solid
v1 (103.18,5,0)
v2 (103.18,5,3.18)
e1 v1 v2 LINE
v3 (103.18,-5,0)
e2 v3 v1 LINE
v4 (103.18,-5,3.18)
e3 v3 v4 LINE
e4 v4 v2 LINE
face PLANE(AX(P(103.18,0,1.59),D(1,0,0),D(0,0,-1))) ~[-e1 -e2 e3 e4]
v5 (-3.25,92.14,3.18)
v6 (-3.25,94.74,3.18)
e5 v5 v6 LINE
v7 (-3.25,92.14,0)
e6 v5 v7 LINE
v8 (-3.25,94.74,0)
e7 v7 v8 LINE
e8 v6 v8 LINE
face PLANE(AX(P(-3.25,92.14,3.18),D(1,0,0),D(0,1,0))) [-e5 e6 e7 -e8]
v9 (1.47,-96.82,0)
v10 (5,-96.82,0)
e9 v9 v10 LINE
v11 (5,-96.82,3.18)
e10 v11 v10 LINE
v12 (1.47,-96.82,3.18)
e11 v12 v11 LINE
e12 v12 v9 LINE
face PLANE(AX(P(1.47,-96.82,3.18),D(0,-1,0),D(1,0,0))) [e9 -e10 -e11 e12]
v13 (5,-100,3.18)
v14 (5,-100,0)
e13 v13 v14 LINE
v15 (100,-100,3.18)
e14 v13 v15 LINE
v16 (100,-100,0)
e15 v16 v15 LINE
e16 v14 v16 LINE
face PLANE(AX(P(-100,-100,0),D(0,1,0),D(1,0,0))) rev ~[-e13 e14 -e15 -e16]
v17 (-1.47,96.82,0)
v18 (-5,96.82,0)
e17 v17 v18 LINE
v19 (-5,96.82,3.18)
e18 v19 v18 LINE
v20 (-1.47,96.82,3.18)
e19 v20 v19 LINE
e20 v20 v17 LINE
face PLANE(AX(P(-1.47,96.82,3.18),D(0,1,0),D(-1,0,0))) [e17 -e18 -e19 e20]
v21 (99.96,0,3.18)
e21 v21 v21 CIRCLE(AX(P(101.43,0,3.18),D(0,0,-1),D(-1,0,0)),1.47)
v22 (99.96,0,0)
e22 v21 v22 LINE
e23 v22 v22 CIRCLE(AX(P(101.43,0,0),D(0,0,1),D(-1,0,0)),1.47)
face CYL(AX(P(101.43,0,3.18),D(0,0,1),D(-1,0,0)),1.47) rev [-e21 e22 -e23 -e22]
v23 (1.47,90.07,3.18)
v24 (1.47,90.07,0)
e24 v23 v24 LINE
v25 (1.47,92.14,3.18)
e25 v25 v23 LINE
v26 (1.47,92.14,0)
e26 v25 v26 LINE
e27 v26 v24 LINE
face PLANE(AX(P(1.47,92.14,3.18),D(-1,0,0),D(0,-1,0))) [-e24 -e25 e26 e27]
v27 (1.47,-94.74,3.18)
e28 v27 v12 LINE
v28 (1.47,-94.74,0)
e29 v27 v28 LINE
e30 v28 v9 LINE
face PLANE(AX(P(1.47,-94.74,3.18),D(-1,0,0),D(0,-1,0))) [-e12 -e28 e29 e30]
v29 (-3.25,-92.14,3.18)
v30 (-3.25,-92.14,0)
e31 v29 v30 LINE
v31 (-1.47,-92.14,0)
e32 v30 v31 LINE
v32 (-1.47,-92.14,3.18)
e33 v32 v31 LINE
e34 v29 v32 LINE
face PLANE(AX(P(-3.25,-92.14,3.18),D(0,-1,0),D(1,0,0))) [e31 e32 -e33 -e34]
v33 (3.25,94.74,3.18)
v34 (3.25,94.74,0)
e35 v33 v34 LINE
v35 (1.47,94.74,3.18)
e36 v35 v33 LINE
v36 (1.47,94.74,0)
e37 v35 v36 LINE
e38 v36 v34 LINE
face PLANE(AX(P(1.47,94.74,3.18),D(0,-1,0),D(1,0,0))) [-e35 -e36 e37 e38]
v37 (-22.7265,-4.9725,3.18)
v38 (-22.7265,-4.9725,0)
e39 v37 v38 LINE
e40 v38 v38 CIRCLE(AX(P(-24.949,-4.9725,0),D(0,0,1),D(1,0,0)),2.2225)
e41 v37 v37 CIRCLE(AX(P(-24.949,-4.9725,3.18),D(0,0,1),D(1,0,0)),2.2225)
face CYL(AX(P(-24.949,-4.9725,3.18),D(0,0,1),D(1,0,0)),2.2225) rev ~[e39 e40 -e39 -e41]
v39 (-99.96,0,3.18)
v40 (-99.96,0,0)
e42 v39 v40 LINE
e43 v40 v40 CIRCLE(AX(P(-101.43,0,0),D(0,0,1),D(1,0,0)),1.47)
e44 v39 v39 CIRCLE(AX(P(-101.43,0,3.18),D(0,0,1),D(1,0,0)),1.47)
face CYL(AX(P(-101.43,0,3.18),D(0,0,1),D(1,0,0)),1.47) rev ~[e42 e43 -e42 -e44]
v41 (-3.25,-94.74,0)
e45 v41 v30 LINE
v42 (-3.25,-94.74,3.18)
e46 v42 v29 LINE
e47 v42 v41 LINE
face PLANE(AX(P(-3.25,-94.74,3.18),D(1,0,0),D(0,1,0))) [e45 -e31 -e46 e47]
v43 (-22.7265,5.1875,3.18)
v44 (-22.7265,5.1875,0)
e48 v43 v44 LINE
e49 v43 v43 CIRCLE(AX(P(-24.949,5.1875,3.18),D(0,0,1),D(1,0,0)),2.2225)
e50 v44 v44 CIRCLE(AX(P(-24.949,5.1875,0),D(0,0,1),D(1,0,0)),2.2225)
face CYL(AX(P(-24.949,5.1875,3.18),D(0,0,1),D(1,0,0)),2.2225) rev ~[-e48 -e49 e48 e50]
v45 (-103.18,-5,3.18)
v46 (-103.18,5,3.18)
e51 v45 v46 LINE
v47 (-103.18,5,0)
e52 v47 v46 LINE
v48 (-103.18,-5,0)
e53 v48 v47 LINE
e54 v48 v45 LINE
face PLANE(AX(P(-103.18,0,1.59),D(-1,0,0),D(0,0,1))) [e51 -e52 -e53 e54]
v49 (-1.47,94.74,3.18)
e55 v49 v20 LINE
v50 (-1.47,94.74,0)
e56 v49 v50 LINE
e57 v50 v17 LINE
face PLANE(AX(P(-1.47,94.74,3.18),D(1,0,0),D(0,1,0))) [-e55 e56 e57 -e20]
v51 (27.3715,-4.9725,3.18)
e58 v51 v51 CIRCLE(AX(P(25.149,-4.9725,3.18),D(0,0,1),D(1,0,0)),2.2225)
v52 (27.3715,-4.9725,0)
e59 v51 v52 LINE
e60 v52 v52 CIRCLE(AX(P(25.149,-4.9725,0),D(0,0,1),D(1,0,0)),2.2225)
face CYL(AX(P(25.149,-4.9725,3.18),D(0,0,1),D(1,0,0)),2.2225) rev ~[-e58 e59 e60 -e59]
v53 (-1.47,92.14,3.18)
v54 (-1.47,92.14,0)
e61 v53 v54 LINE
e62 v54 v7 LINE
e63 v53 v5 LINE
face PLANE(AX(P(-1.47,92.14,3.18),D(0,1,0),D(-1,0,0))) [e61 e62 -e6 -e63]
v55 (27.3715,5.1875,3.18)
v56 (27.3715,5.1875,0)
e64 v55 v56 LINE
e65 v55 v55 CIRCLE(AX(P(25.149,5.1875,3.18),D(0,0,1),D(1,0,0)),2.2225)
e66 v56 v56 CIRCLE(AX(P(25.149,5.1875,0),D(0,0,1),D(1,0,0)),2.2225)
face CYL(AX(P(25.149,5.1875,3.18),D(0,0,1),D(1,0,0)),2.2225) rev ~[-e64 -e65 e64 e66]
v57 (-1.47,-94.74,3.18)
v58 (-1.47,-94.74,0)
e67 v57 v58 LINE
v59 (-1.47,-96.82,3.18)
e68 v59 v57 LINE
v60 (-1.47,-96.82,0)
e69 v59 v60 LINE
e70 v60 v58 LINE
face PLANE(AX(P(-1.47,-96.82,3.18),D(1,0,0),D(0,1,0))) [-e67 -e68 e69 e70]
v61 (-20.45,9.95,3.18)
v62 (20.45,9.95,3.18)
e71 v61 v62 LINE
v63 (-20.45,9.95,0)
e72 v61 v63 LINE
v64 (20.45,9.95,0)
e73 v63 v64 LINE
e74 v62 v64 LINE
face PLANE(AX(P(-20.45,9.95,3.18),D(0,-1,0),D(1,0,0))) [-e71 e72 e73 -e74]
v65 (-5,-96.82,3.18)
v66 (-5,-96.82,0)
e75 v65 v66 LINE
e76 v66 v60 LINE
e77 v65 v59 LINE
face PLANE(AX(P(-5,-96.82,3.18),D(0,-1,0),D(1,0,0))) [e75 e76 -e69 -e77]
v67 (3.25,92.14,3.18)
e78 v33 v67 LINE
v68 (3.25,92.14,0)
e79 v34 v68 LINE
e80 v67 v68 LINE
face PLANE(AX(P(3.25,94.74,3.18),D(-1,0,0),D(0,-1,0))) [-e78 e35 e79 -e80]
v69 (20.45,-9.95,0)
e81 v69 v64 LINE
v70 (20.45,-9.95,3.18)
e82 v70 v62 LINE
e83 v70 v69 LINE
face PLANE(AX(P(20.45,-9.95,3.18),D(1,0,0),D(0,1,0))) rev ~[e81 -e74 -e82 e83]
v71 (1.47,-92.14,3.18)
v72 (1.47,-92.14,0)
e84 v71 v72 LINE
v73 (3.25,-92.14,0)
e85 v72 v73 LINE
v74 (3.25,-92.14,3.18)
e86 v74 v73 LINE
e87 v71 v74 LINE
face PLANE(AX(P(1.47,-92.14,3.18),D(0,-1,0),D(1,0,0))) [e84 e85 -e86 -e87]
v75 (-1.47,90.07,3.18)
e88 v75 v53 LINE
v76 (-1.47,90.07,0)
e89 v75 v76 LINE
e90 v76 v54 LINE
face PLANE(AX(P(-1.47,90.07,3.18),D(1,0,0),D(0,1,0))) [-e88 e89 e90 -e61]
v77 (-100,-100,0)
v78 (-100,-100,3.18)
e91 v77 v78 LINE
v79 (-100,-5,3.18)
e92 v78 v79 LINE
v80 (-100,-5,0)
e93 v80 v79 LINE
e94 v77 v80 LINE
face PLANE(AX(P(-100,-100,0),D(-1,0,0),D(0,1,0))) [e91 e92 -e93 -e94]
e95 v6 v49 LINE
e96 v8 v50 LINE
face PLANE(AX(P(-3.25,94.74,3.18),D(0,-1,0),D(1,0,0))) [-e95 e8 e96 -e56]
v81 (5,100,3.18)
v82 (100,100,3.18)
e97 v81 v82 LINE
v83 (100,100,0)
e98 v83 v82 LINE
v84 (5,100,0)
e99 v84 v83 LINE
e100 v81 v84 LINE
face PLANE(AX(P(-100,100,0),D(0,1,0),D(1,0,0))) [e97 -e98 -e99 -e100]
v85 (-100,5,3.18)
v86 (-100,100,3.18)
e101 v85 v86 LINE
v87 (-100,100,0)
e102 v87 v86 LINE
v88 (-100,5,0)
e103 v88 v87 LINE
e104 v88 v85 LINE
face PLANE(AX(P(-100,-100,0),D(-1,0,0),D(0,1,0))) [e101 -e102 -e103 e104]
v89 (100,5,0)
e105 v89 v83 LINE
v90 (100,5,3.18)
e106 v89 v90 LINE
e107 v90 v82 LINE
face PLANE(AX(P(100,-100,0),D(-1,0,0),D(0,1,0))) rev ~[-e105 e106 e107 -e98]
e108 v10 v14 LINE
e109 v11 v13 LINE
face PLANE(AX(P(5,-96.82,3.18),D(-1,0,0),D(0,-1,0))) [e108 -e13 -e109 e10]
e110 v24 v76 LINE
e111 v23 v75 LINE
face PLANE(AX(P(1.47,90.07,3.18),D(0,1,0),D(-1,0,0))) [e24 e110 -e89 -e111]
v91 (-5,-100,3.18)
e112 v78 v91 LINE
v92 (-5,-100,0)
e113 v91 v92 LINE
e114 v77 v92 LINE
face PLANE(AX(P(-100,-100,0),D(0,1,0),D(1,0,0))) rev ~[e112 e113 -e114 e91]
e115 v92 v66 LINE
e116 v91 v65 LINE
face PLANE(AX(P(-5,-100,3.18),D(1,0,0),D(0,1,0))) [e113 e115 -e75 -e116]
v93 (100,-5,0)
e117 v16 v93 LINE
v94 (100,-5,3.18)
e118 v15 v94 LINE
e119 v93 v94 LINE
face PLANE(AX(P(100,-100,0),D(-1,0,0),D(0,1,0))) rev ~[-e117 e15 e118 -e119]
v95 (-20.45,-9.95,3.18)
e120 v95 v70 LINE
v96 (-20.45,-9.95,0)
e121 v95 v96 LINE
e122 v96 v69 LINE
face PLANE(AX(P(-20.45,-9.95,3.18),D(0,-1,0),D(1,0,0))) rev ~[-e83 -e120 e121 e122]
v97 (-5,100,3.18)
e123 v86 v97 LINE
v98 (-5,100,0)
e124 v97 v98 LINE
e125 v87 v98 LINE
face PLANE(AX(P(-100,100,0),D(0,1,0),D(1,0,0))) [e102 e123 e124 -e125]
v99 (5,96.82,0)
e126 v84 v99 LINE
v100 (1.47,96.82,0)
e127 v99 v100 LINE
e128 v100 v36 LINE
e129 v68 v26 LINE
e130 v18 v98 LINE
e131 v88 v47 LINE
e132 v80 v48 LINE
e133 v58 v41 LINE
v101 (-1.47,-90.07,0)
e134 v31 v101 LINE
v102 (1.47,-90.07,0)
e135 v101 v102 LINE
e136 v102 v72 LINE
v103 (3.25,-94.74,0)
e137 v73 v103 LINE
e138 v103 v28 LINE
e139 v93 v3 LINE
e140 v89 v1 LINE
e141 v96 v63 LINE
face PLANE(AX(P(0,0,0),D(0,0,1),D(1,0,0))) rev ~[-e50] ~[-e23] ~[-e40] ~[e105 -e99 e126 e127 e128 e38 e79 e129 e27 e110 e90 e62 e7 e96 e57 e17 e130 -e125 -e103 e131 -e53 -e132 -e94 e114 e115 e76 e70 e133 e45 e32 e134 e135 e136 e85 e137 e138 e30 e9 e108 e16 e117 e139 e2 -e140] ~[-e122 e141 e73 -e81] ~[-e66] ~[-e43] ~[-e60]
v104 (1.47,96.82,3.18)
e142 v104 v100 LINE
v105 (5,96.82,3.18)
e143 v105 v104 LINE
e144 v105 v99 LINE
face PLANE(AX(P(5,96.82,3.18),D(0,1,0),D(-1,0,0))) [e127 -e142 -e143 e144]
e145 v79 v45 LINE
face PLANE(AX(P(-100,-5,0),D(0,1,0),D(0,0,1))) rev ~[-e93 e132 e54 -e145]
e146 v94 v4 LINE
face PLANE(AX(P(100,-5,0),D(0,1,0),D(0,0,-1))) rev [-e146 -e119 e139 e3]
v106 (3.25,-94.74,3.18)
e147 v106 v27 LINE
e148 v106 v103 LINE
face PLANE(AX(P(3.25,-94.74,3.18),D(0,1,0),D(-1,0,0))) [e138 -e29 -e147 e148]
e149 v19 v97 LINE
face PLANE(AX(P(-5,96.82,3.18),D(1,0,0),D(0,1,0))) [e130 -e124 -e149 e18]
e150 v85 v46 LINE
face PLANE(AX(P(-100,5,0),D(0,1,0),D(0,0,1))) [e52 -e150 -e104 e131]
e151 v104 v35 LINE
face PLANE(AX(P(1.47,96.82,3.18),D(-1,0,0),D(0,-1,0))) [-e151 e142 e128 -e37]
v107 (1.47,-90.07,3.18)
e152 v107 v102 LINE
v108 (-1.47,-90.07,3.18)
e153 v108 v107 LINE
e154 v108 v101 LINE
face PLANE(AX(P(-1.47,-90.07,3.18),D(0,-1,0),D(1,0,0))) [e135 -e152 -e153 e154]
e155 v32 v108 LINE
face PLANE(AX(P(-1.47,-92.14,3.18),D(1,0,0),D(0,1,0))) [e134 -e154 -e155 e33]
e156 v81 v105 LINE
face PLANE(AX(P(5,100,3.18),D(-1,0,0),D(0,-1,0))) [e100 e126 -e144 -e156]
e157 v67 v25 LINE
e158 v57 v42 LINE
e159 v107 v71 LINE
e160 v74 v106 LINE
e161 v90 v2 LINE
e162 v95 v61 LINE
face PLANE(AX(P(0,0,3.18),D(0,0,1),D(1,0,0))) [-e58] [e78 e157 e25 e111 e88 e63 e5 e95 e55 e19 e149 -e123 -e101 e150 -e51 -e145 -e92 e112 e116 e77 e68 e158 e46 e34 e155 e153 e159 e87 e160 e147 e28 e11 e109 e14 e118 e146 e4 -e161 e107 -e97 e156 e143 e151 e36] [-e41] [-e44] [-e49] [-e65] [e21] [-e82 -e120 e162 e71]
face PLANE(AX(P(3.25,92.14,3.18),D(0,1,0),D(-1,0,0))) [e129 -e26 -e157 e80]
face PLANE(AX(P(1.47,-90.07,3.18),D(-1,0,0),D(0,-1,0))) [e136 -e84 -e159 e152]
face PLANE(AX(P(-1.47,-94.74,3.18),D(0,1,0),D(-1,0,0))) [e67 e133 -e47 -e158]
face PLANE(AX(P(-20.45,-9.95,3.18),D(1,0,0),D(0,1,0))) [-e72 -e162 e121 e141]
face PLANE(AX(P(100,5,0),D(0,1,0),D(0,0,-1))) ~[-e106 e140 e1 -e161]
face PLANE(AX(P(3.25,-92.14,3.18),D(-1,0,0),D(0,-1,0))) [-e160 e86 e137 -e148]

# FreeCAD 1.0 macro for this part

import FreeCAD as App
import Part
import Sketcher
from FreeCAD import Vector


def add_polygon(sketch, points):
    """Adds a closed chain of lines whose ends are joined by coincident constraints."""
    first, n = sketch.GeometryCount, len(points)
    for a, b in zip(points, points[1:] + points[:1]):
        sketch.addGeometry(Part.LineSegment(App.Vector(*a, 0), App.Vector(*b, 0)), False)
    for i in range(n):
        sketch.addConstraint(Sketcher.Constraint("Coincident", first + i, 2, first + (i + 1) % n, 1))

doc = App.newDocument("Part")
body = doc.addObject("PartDesign::Body", "Body")

sketch1 = body.newObject("Sketcher::SketchObject", "Sketch")
sketch1.AttachmentSupport = (doc.getObject("XY_Plane"), [""])
sketch1.MapMode = "FlatFace"
add_polygon(sketch1, [(-100, 100), (-100, -100), (100, -100), (100, 100)])
sketch1.addConstraint(Sketcher.Constraint("Vertical", 0))
sketch1.addConstraint(Sketcher.Constraint("Horizontal", 1))
sketch1.addConstraint(Sketcher.Constraint("Vertical", 2))
sketch1.addConstraint(Sketcher.Constraint("Horizontal", 3))
sketch1.addConstraint(Sketcher.Constraint("Symmetric", 0, 2, 2, 2, -1, 1))
sketch1.addConstraint(Sketcher.Constraint("Equal", 3, 0))
sketch1.addConstraint(Sketcher.Constraint("DistanceX", 1, 1, 1, 2, 200.0))
pad1 = body.newObject("PartDesign::Pad", "Pad")
pad1.Profile = sketch1
pad1.Length = 3.18

sketch2 = body.newObject("Sketcher::SketchObject", "Sketch001")
sketch2.AttachmentSupport = (doc.getObject("XY_Plane"), [""])
sketch2.MapMode = "FlatFace"
sketch2.AttachmentOffset = App.Placement(Vector(0, 0, 3.18), App.Rotation())
add_polygon(sketch2, [(5, 100), (-5, 100), (-5, 96.8), (-1.5, 96.8), (-1.5, 94.7), (-3.2, 94.7), (-3.2, 92.1), (-1.5, 92.1), (-1.5, 90.1), (1.5, 90.1), (1.5, 92.1), (3.2, 92.1), (3.2, 94.7), (1.5, 94.7), (1.5, 96.8), (5, 96.8)])
add_polygon(sketch2, [(5, -96.8), (1.5, -96.8), (1.5, -94.7), (3.2, -94.7), (3.2, -92.1), (1.5, -92.1), (1.5, -90.1), (-1.5, -90.1), (-1.5, -92.1), (-3.2, -92.1), (-3.2, -94.7), (-1.5, -94.7), (-1.5, -96.8), (-5, -96.8), (-5, -100), (5, -100)])
sketch2.addConstraint(Sketcher.Constraint("Horizontal", 0))
sketch2.addConstraint(Sketcher.Constraint("Vertical", 1))
sketch2.addConstraint(Sketcher.Constraint("Horizontal", 2))
sketch2.addConstraint(Sketcher.Constraint("Vertical", 3))
sketch2.addConstraint(Sketcher.Constraint("Horizontal", 4))
sketch2.addConstraint(Sketcher.Constraint("Vertical", 5))
sketch2.addConstraint(Sketcher.Constraint("Horizontal", 6))
sketch2.addConstraint(Sketcher.Constraint("Vertical", 7))
sketch2.addConstraint(Sketcher.Constraint("Horizontal", 8))
sketch2.addConstraint(Sketcher.Constraint("Vertical", 9))
sketch2.addConstraint(Sketcher.Constraint("Horizontal", 10))
sketch2.addConstraint(Sketcher.Constraint("Vertical", 11))
sketch2.addConstraint(Sketcher.Constraint("Horizontal", 12))
sketch2.addConstraint(Sketcher.Constraint("Vertical", 13))
sketch2.addConstraint(Sketcher.Constraint("Horizontal", 14))
sketch2.addConstraint(Sketcher.Constraint("Vertical", 15))
sketch2.addConstraint(Sketcher.Constraint("Horizontal", 16))
sketch2.addConstraint(Sketcher.Constraint("Vertical", 17))
sketch2.addConstraint(Sketcher.Constraint("Horizontal", 18))
sketch2.addConstraint(Sketcher.Constraint("Vertical", 19))
sketch2.addConstraint(Sketcher.Constraint("Horizontal", 20))
sketch2.addConstraint(Sketcher.Constraint("Vertical", 21))
sketch2.addConstraint(Sketcher.Constraint("Horizontal", 22))
sketch2.addConstraint(Sketcher.Constraint("Vertical", 23))
sketch2.addConstraint(Sketcher.Constraint("Horizontal", 24))
sketch2.addConstraint(Sketcher.Constraint("Vertical", 25))
sketch2.addConstraint(Sketcher.Constraint("Horizontal", 26))
sketch2.addConstraint(Sketcher.Constraint("Vertical", 27))
sketch2.addConstraint(Sketcher.Constraint("Horizontal", 28))
sketch2.addConstraint(Sketcher.Constraint("Vertical", 29))
sketch2.addConstraint(Sketcher.Constraint("Horizontal", 30))
sketch2.addConstraint(Sketcher.Constraint("Vertical", 31))
sketch2.addConstraint(Sketcher.Constraint("Symmetric", 2, 2, 16, 2, -1, 1))
sketch2.addConstraint(Sketcher.Constraint("Symmetric", 4, 2, 18, 2, -1, 1))
sketch2.addConstraint(Sketcher.Constraint("Symmetric", 6, 2, 20, 2, -1, 1))
sketch2.addConstraint(Sketcher.Constraint("Symmetric", 8, 2, 22, 2, -1, 1))
sketch2.addConstraint(Sketcher.Constraint("Symmetric", 10, 2, 24, 2, -1, 1))
sketch2.addConstraint(Sketcher.Constraint("Symmetric", 12, 2, 26, 2, -1, 1))
sketch2.addConstraint(Sketcher.Constraint("Symmetric", 14, 2, 28, 2, -1, 1))
sketch2.addConstraint(Sketcher.Constraint("Symmetric", 0, 2, 30, 2, -1, 1))
sketch2.addConstraint(Sketcher.Constraint("Symmetric", 6, 2, 9, 2, -2))
sketch2.addConstraint(Sketcher.Constraint("Symmetric", 4, 2, 11, 2, -2))
sketch2.addConstraint(Sketcher.Constraint("Symmetric", 2, 2, 13, 2, -2))
sketch2.addConstraint(Sketcher.Constraint("Vertical", 3, 2, 6, 2))
sketch2.addConstraint(Sketcher.Constraint("Vertical", 1, 2, 28, 2))
sketch2.addConstraint(Sketcher.Constraint("DistanceX", 0, 2, 0, 1, 10.0))
sketch2.addConstraint(Sketcher.Constraint("DistanceY", 5, 2, 5, 1, 2.6))
sketch2.addConstraint(Sketcher.Constraint("DistanceY", -1, 1, 0, 2, 100.0))
sketch2.addConstraint(Sketcher.Constraint("DistanceX", 2, 1, 2, 2, 3.53))
sketch2.addConstraint(Sketcher.Constraint("DistanceX", 4, 2, 4, 1, 1.78))
sketch2.addConstraint(Sketcher.Constraint("DistanceY", 1, 2, 1, 1, 3.18))
sketch2.addConstraint(Sketcher.Constraint("DistanceY", 3, 2, 3, 1, 2.08))
sketch2.addConstraint(Sketcher.Constraint("DistanceY", 7, 2, 7, 1, 2.07))
pocket1 = body.newObject("PartDesign::Pocket", "Pocket")
pocket1.Profile = sketch2
pocket1.Type = "ThroughAll"

sketch3 = body.newObject("Sketcher::SketchObject", "Sketch002")
sketch3.AttachmentSupport = (doc.getObject("YZ_Plane"), [""])
sketch3.MapMode = "FlatFace"
sketch3.AttachmentOffset = App.Placement(Vector(0, 0, -100), App.Rotation())
add_polygon(sketch3, [(5, 0), (-5, 0), (-5, 3.2), (5, 3.2)])
sketch3.addConstraint(Sketcher.Constraint("Horizontal", 0))
sketch3.addConstraint(Sketcher.Constraint("Vertical", 1))
sketch3.addConstraint(Sketcher.Constraint("Horizontal", 2))
sketch3.addConstraint(Sketcher.Constraint("Vertical", 3))
sketch3.addConstraint(Sketcher.Constraint("Symmetric", 0, 2, 3, 2, -1, 1))
sketch3.addConstraint(Sketcher.Constraint("DistanceX", 0, 2, 0, 1, 10.0))
sketch3.addConstraint(Sketcher.Constraint("DistanceY", 1, 1, 1, 2, 3.18))
pad2 = body.newObject("PartDesign::Pad", "Pad001")
pad2.Profile = sketch3
pad2.Length = 3.18
pad2.Reversed = True

sketch4 = body.newObject("Sketcher::SketchObject", "Sketch003")
sketch4.AttachmentSupport = (doc.getObject("XY_Plane"), [""])
sketch4.MapMode = "FlatFace"
sketch4.AttachmentOffset = App.Placement(Vector(0, 0, 3.18), App.Rotation())
sketch4.addGeometry(Part.Circle(Vector(-101.4, 0, 0), Vector(0, 0, 1), 1.5), False)
sketch4.addConstraint(Sketcher.Constraint("PointOnObject", 0, 3, -1))
sketch4.addConstraint(Sketcher.Constraint("Diameter", 0, 2.94))
sketch4.addConstraint(Sketcher.Constraint("DistanceX", 0, 3, -1, 1, 101.43))
pocket2 = body.newObject("PartDesign::Pocket", "Pocket001")
pocket2.Profile = sketch4
pocket2.Type = "ThroughAll"
doc.recompute()

mirrored = body.newObject("PartDesign::Mirrored", "Mirrored")
mirrored.Originals = [pad2]
mirrored.MirrorPlane = (doc.getObject("YZ_Plane"), [""])
body.Tip = mirrored
doc.recompute()

mirrored2 = body.newObject("PartDesign::Mirrored", "Mirrored001")
mirrored2.Originals = [pocket2]
mirrored2.MirrorPlane = (doc.getObject("YZ_Plane"), [""])
body.Tip = mirrored2

sketch5 = body.newObject("Sketcher::SketchObject", "Sketch004")
sketch5.AttachmentSupport = (doc.getObject("XY_Plane"), [""])
sketch5.MapMode = "FlatFace"
sketch5.AttachmentOffset = App.Placement(Vector(0, 0, 3.18), App.Rotation())
add_polygon(sketch5, [(-20, 10), (-20, -10), (20, -10), (20, 10)])
sketch5.addConstraint(Sketcher.Constraint("Vertical", 0))
sketch5.addConstraint(Sketcher.Constraint("Horizontal", 1))
sketch5.addConstraint(Sketcher.Constraint("Vertical", 2))
sketch5.addConstraint(Sketcher.Constraint("Horizontal", 3))
sketch5.addConstraint(Sketcher.Constraint("Symmetric", 0, 2, 2, 2, -1, 1))
sketch5.addConstraint(Sketcher.Constraint("DistanceX", 1, 1, 1, 2, 40.9))
sketch5.addConstraint(Sketcher.Constraint("DistanceY", 0, 2, 0, 1, 19.9))
pocket3 = body.newObject("PartDesign::Pocket", "Pocket002")
pocket3.Profile = sketch5
pocket3.Type = "ThroughAll"

sketch6 = body.newObject("Sketcher::SketchObject", "Sketch005")
sketch6.AttachmentSupport = (doc.getObject("XY_Plane"), [""])
sketch6.MapMode = "FlatFace"
sketch6.AttachmentOffset = App.Placement(Vector(0, 0, 3.18), App.Rotation())
sketch6.addGeometry(Part.Circle(Vector(-24.9, 5.2, 0), Vector(0, 0, 1), 2.2), False)
sketch6.addGeometry(Part.Circle(Vector(-24.9, -5, 0), Vector(0, 0, 1), 2.2), False)
sketch6.addGeometry(Part.Circle(Vector(25.1, 5.2, 0), Vector(0, 0, 1), 2.2), False)
sketch6.addGeometry(Part.Circle(Vector(25.1, -5, 0), Vector(0, 0, 1), 2.2), False)
sketch6.addConstraint(Sketcher.Constraint("Equal", 0, 1))
sketch6.addConstraint(Sketcher.Constraint("Equal", 1, 2))
sketch6.addConstraint(Sketcher.Constraint("Equal", 2, 3))
sketch6.addConstraint(Sketcher.Constraint("Horizontal", 0, 3, 2, 3))
sketch6.addConstraint(Sketcher.Constraint("Horizontal", 1, 3, 3, 3))
sketch6.addConstraint(Sketcher.Constraint("Vertical", 0, 3, 1, 3))
sketch6.addConstraint(Sketcher.Constraint("Vertical", 2, 3, 3, 3))
sketch6.addConstraint(Sketcher.Constraint("Diameter", 0, 4.445))
sketch6.addConstraint(Sketcher.Constraint("DistanceY", 1, 3, 0, 3, 10.16))
sketch6.addConstraint(Sketcher.Constraint("DistanceX", 0, 3, -1, 1, 24.949))
sketch6.addConstraint(Sketcher.Constraint("DistanceX", -1, 1, 2, 3, 25.149))
sketch6.addConstraint(Sketcher.Constraint("DistanceY", -1, 1, 0, 3, 5.1875))
pocket4 = body.newObject("PartDesign::Pocket", "Pocket003")
pocket4.Profile = sketch6
pocket4.Type = "ThroughAll"

doc.recompute()
